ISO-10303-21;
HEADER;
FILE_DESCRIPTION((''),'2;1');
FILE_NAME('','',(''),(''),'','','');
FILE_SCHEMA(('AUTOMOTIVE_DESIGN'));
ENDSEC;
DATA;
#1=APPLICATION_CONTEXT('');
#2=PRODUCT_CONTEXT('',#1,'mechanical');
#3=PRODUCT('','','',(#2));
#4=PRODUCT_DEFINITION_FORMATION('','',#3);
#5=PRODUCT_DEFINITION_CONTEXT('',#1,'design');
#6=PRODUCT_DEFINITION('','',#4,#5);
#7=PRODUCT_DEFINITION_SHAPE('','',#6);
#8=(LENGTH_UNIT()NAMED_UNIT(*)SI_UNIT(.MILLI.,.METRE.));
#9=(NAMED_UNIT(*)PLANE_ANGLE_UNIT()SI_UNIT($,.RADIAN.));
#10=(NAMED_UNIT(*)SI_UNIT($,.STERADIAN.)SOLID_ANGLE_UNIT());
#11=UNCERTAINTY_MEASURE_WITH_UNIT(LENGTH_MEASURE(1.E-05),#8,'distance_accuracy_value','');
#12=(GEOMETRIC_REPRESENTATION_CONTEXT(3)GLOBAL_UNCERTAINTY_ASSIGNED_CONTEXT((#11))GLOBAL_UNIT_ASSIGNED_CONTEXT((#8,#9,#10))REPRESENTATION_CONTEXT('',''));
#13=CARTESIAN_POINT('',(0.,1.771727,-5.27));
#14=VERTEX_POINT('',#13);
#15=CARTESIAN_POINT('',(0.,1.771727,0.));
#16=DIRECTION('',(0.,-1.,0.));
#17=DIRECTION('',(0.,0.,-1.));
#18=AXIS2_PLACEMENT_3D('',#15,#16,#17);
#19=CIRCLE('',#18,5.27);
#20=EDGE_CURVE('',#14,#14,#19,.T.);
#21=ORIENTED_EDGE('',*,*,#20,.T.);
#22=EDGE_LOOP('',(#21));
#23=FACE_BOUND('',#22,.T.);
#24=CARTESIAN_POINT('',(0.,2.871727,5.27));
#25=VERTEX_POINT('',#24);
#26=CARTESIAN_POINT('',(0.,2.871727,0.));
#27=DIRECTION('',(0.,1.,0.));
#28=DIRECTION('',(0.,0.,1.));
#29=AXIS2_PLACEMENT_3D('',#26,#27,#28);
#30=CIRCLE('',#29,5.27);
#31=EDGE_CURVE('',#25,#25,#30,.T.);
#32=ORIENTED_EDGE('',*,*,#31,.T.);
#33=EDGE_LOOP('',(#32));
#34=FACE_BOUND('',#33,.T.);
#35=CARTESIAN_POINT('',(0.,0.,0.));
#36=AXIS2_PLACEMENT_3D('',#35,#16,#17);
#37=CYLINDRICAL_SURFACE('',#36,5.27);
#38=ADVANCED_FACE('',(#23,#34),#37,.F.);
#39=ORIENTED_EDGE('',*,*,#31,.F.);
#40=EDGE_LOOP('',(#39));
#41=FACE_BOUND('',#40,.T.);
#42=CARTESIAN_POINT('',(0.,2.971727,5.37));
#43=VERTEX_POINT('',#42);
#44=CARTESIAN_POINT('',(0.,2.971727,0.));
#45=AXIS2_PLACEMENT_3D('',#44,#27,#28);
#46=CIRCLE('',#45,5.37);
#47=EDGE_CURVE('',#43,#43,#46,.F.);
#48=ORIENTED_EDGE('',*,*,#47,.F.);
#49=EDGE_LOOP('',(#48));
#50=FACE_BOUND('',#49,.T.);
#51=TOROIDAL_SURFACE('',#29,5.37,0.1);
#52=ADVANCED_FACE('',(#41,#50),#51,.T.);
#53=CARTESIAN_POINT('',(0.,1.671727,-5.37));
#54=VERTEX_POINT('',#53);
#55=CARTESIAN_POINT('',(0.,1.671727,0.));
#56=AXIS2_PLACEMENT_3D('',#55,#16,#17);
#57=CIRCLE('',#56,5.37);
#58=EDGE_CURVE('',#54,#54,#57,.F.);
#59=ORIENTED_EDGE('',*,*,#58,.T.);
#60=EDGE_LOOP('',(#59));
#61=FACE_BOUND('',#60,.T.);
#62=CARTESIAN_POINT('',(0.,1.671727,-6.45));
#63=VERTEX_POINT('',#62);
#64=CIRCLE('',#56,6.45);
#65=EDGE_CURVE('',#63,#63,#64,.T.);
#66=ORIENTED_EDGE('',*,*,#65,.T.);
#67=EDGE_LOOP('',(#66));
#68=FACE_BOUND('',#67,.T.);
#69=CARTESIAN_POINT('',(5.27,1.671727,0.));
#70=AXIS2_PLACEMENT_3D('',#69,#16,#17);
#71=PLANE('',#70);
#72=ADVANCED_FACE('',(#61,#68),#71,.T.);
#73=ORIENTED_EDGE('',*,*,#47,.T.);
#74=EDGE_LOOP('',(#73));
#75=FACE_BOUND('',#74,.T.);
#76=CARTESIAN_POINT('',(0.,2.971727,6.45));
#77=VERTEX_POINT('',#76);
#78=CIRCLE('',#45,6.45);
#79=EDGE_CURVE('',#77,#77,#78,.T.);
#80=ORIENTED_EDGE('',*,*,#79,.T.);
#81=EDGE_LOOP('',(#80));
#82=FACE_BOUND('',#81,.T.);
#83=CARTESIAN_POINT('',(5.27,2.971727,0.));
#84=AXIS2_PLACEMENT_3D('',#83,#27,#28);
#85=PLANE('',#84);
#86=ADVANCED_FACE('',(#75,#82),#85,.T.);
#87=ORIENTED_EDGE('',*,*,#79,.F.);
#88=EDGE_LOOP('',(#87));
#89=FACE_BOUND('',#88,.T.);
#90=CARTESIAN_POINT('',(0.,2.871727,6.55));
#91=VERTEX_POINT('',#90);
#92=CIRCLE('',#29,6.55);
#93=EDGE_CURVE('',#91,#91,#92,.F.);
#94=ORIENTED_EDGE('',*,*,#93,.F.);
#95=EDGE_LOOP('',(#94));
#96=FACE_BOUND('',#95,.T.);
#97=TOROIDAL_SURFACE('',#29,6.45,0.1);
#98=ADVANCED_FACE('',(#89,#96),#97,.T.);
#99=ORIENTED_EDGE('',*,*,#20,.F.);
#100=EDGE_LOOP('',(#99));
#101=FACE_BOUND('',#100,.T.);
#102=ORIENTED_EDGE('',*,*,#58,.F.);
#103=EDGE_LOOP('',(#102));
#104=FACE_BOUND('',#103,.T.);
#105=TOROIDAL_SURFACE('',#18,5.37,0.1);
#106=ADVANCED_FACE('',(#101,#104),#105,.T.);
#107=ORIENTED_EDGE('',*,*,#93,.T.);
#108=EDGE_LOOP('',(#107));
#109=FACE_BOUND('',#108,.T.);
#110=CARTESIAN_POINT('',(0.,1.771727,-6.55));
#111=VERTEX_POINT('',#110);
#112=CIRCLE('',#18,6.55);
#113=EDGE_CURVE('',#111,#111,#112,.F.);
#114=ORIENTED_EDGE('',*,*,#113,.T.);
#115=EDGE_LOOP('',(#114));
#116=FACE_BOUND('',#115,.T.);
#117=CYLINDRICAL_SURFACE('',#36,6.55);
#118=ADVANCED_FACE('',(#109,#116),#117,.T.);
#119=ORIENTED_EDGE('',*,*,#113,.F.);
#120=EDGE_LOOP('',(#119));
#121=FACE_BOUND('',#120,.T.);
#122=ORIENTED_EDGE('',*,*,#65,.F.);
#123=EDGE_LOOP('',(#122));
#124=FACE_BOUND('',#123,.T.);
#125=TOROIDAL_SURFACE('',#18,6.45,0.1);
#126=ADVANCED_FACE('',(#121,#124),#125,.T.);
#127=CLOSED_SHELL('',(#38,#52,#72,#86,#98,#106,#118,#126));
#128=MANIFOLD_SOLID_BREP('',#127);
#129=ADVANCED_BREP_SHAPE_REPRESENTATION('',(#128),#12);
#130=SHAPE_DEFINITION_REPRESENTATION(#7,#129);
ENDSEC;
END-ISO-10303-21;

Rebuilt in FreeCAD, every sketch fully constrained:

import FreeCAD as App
import Part
import Sketcher


def edges_at(feature, points):
    """Names of the edges that pass closest to the given points."""
    edges = feature.Shape.Edges
    near = lambda p: min(range(len(edges)), key=lambda i: edges[i].distToShape(Part.Vertex(*p))[0])
    return sorted({f"Edge{near(p) + 1}" for p in points})


def add_polygon(sketch, points):
    """Adds a closed chain of lines whose ends are joined by coincident constraints."""
    first, n = sketch.GeometryCount, len(points)
    for a, b in zip(points, points[1:] + points[:1]):
        sketch.addGeometry(Part.LineSegment(App.Vector(*a, 0), App.Vector(*b, 0)), False)
    for i in range(n):
        sketch.addConstraint(Sketcher.Constraint("Coincident", first + i, 2, first + (i + 1) % n, 1))

doc = App.newDocument("Part")
params = doc.addObject("Spreadsheet::Sheet", "Params")
for row, (alias, value) in enumerate([
    ("sketch1_height", "1.3 mm"),
    ("sketch1_width", "1.28 mm"),
    ("revolution_angle", "360 deg"),
    ("fillet_radius", "0.1 mm"),
], start=1):
    params.set(f"A{row}", alias)
    params.set(f"B{row}", "=" + value)
    params.setAlias(f"B{row}", alias)

body = doc.addObject("PartDesign::Body", "Body")

# Sketch on XY plane
sketch1 = body.newObject("Sketcher::SketchObject", "Sketch")
sketch1.AttachmentSupport = (doc.getObject("XY_Plane"), [""])
sketch1.MapMode = "FlatFace"
add_polygon(sketch1, [(5.3, 3), (5.3, 1.7), (6.5, 1.7), (6.5, 3)])  # lines 0-3
sketch1.addConstraint(Sketcher.Constraint("Vertical", 0))
sketch1.addConstraint(Sketcher.Constraint("Horizontal", 1))
sketch1.addConstraint(Sketcher.Constraint("Vertical", 2))
sketch1.addConstraint(Sketcher.Constraint("Horizontal", 3))
sketch1.addConstraint(Sketcher.Constraint("DistanceY", 0, 2, 0, 1, 1.3))
sketch1.addConstraint(Sketcher.Constraint("DistanceX", 1, 1, 1, 2, 1.28))
sketch1.addConstraint(Sketcher.Constraint("DistanceX", -1, 1, 0, 2, 5.27))
sketch1.addConstraint(Sketcher.Constraint("DistanceY", -1, 1, 0, 2, 1.671727))
sketch1.setExpression("Constraints[8]", "Params.sketch1_height")
sketch1.setExpression("Constraints[9]", "Params.sketch1_width")
revolution = body.newObject("PartDesign::Revolution", "Revolution")
revolution.Profile = sketch1
revolution.ReferenceAxis = (sketch1, ["V_Axis"])
revolution.setExpression("Angle", "Params.revolution_angle")
doc.recompute()

fillet = body.newObject("PartDesign::Fillet", "Fillet")
fillet.Base = (revolution, edges_at(revolution, [
    (-5.27, 2.972, 0),
    (-6.55, 2.972, 0),
    (-6.55, 1.672, 0),
    (-5.27, 1.672, 0),
]))
fillet.setExpression("Radius", "Params.fillet_radius")

doc.recompute()
